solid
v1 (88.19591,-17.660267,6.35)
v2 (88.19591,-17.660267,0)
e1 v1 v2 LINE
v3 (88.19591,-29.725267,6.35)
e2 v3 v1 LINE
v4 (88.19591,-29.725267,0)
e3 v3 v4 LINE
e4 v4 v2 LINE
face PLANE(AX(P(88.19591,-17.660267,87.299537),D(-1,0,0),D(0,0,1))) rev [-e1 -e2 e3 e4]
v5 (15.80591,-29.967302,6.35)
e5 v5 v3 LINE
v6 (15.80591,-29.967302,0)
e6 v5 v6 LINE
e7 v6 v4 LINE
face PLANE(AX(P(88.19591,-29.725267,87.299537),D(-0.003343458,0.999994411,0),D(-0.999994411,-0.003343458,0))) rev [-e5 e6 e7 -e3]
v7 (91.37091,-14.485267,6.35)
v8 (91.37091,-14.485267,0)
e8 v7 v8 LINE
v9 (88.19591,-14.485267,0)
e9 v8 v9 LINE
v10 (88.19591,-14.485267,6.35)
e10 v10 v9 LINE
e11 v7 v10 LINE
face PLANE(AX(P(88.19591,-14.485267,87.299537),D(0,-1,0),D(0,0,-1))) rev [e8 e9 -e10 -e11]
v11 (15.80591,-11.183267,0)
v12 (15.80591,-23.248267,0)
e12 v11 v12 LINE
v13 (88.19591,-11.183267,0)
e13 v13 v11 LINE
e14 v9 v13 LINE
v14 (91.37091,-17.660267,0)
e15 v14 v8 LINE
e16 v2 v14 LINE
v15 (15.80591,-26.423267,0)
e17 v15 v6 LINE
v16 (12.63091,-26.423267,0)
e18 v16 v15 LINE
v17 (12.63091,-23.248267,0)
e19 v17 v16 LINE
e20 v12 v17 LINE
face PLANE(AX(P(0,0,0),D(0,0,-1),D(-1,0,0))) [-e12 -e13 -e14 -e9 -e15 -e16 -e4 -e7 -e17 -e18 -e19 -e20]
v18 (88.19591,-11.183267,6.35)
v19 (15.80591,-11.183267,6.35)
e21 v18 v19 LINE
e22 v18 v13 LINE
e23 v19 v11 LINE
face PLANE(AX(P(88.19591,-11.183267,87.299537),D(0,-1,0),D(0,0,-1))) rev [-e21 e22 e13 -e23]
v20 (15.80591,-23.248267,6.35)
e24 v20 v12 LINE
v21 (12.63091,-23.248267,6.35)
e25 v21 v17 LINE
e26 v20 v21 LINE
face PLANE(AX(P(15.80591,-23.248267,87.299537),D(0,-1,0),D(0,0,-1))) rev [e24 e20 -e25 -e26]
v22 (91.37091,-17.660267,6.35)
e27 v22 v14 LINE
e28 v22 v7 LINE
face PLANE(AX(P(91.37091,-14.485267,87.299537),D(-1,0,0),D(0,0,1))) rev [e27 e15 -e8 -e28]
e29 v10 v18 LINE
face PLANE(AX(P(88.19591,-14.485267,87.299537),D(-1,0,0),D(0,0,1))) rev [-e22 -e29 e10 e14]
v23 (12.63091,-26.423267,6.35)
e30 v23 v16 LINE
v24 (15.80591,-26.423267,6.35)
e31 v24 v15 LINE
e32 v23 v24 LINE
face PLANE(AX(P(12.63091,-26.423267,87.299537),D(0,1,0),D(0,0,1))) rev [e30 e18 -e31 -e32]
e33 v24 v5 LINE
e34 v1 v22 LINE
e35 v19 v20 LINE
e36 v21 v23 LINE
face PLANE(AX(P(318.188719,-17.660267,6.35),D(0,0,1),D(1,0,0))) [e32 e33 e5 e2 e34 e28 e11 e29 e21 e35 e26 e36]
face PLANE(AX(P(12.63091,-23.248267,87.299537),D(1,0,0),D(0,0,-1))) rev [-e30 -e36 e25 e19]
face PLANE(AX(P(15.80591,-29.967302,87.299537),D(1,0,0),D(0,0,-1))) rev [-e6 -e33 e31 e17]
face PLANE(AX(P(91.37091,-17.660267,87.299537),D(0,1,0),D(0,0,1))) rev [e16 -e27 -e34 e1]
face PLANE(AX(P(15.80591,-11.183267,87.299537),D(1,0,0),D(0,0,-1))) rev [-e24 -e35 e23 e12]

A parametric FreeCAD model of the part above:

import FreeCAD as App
import Part
import Sketcher
from FreeCAD import Vector
Q = App.Units.Quantity


def add_polygon(sketch, points):
    """Adds a closed chain of lines whose ends are joined by coincident constraints."""
    first, n = sketch.GeometryCount, len(points)
    for a, b in zip(points, points[1:] + points[:1]):
        sketch.addGeometry(Part.LineSegment(App.Vector(*a, 0), App.Vector(*b, 0)), False)
    for i in range(n):
        sketch.addConstraint(Sketcher.Constraint("Coincident", first + i, 2, first + (i + 1) % n, 1))

doc = App.newDocument("Part")
body = doc.addObject("PartDesign::Body", "Body")

# Sketch on XY plane
sketch1 = body.newObject("Sketcher::SketchObject", "Sketch")
sketch1.AttachmentSupport = (doc.getObject("XY_Plane"), [""])
sketch1.MapMode = "FlatFace"
add_polygon(sketch1, [(15.80591, -23.248267), (12.63091, -23.248267), (12.63091, -26.423267), (15.80591, -26.423267), (15.80591, -29.967302), (88.19591, -29.725267), (88.19591, -17.660267), (91.37091, -17.660267), (91.37091, -14.485267), (88.19591, -14.485267), (88.19591, -11.183267), (15.80591, -11.183267)])  # lines 0-11
sketch1.addConstraint([
    Sketcher.Constraint("Horizontal", 0),
    Sketcher.Constraint("Vertical", 1),
    Sketcher.Constraint("Horizontal", 2),
    Sketcher.Constraint("Vertical", 3),
    Sketcher.Constraint("Vertical", 5),
    Sketcher.Constraint("Horizontal", 6),
    Sketcher.Constraint("Vertical", 7),
    Sketcher.Constraint("Horizontal", 8),
    Sketcher.Constraint("Vertical", 9),
    Sketcher.Constraint("Horizontal", 10),
    Sketcher.Constraint("Vertical", 11),
    Sketcher.Constraint("Vertical", 5, 2, 8, 2),
    Sketcher.Constraint("Vertical", 3, 2, 10, 2),
    Sketcher.Constraint("Equal", 2, 6),
    Sketcher.Constraint("Equal", 8, 1),
    Sketcher.Constraint("Equal", 1, 7),
    Sketcher.Constraint("Equal", 5, 11),
    Sketcher.Constraint("DistanceX", 10, 2, 10, 1, Q("2.85 in")),
    Sketcher.Constraint("DistanceY", 9, 1, 9, 2, Q("0.13 in")),
    Sketcher.Constraint("DistanceX", 0, 2, 6, 2, Q("3.1 in")),
    Sketcher.Constraint("DistanceY", 4, 2, 7, 2, Q("0.6 in")),
    Sketcher.Constraint("DistanceY", 3, 2, -1, 1, 29.967302),
    Sketcher.Constraint("DistanceY", 3, 2, 3, 1, 3.544034),
    Sketcher.Constraint("DistanceX", -1, 1, 0, 2, 12.63091),
])
pad1 = body.newObject("PartDesign::Pad", "Pad")
pad1.Profile = sketch1
pad1.Length = Q("0.25 in")

doc.recompute()
